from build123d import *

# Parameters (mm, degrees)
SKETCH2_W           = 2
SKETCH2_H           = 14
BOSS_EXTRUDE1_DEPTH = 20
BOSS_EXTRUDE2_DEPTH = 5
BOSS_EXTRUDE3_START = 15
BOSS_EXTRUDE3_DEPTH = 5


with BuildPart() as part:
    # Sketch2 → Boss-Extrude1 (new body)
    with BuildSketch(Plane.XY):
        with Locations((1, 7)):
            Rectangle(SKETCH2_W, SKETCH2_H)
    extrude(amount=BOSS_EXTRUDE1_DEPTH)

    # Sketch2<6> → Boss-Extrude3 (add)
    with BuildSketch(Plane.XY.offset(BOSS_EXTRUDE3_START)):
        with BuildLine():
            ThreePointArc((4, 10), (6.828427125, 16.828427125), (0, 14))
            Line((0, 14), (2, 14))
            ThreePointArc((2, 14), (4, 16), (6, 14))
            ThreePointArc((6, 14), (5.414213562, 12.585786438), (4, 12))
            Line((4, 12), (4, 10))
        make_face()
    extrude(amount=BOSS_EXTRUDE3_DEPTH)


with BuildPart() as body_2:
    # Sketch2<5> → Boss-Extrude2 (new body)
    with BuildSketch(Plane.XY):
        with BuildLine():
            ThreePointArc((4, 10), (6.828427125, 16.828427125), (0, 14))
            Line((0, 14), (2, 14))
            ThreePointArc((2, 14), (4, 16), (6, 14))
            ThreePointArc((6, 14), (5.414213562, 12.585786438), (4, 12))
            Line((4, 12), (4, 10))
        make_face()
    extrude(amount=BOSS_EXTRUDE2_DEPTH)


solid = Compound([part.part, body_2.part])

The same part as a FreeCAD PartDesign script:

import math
import FreeCAD as App
import Part
import Sketcher


def add_polygon(sketch, points):
    """Adds a closed chain of lines whose ends are joined by coincident constraints."""
    first, n = sketch.GeometryCount, len(points)
    for a, b in zip(points, points[1:] + points[:1]):
        sketch.addGeometry(Part.LineSegment(App.Vector(*a, 0), App.Vector(*b, 0)), False)
    for i in range(n):
        sketch.addConstraint(Sketcher.Constraint("Coincident", first + i, 2, first + (i + 1) % n, 1))

doc = App.newDocument("Part")
body = doc.addObject("PartDesign::Body", "Body")

# Sketch on XY plane
sketch1 = body.newObject("Sketcher::SketchObject", "Sketch")
sketch1.AttachmentSupport = (doc.getObject("XY_Plane"), [""])
sketch1.MapMode = "FlatFace"
add_polygon(sketch1, [(0, 14), (0, 0), (2, 0), (2, 14)])  # lines 0-3
sketch1.addConstraint(Sketcher.Constraint("Vertical", 0))
sketch1.addConstraint(Sketcher.Constraint("Horizontal", 1))
sketch1.addConstraint(Sketcher.Constraint("Vertical", 2))
sketch1.addConstraint(Sketcher.Constraint("Horizontal", 3))
sketch1.addConstraint(Sketcher.Constraint("Coincident", 0, 2, -1, 1))
sketch1.addConstraint(Sketcher.Constraint("DistanceX", 1, 1, 1, 2, 2.0))
sketch1.addConstraint(Sketcher.Constraint("DistanceY", 0, 2, 0, 1, 14.0))
pad1 = body.newObject("PartDesign::Pad", "Pad")
pad1.Profile = sketch1
pad1.Length = 20

# Sketch on XY plane
sketch2 = body.newObject("Sketcher::SketchObject", "Sketch001")
sketch2.AttachmentSupport = (doc.getObject("XY_Plane"), [""])
sketch2.MapMode = "FlatFace"
sketch2.AttachmentOffset = App.Placement(App.Vector(0, 0, 15), App.Rotation())
sketch2.addGeometry(Part.ArcOfCircle(Part.Circle(App.Vector(4, 14, 0), App.Vector(0, 0, 1), 4), math.radians(-90), math.radians(180)), False)
sketch2.addGeometry(Part.LineSegment(App.Vector(0, 14, 0), App.Vector(2, 14, 0)), False)
sketch2.addGeometry(Part.ArcOfCircle(Part.Circle(App.Vector(4, 14, 0), App.Vector(0, 0, 1), 2), math.radians(0), math.radians(180)), False)
sketch2.addGeometry(Part.ArcOfCircle(Part.Circle(App.Vector(4, 14, 0), App.Vector(0, 0, 1), 2), math.radians(-90), math.radians(0)), False)
sketch2.addGeometry(Part.LineSegment(App.Vector(4, 12, 0), App.Vector(4, 10, 0)), False)
sketch2.addConstraint(Sketcher.Constraint("Coincident", 0, 2, 1, 1))
sketch2.addConstraint(Sketcher.Constraint("Coincident", 1, 2, 2, 2))
sketch2.addConstraint(Sketcher.Constraint("Tangent", 2, 1, 3, 2))
sketch2.addConstraint(Sketcher.Constraint("Coincident", 3, 1, 4, 1))
sketch2.addConstraint(Sketcher.Constraint("Coincident", 4, 2, 0, 1))
sketch2.addConstraint(Sketcher.Constraint("Horizontal", 1))
sketch2.addConstraint(Sketcher.Constraint("Vertical", 4))
sketch2.addConstraint(Sketcher.Constraint("Coincident", 2, 3, 0, 3))
sketch2.addConstraint(Sketcher.Constraint("Equal", 2, 3))
sketch2.addConstraint(Sketcher.Constraint("PointOnObject", 0, 2, -2))
sketch2.addConstraint(Sketcher.Constraint("Horizontal", 3, 3, 0, 2))
sketch2.addConstraint(Sketcher.Constraint("Horizontal", 1, 2, 2, 1))
sketch2.addConstraint(Sketcher.Constraint("Vertical", 2, 3, 3, 1))
sketch2.addConstraint(Sketcher.Constraint("Radius", 0, 4.0))
sketch2.addConstraint(Sketcher.Constraint("Radius", 2, 2.0))
sketch2.addConstraint(Sketcher.Constraint("DistanceY", -1, 1, 0, 3, 14.0))
pad2 = body.newObject("PartDesign::Pad", "Pad001")
pad2.Profile = sketch2
pad2.Length = 5
body2 = doc.addObject("PartDesign::Body", "Body001")

# Sketch on XY plane
sketch3 = body2.newObject("Sketcher::SketchObject", "Sketch002")
sketch3.AttachmentSupport = (doc.getObject("XY_Plane001"), [""])
sketch3.MapMode = "FlatFace"
sketch3.addGeometry(Part.ArcOfCircle(Part.Circle(App.Vector(4, 14, 0), App.Vector(0, 0, 1), 4), math.radians(-90), math.radians(180)), False)
sketch3.addGeometry(Part.LineSegment(App.Vector(0, 14, 0), App.Vector(2, 14, 0)), False)
sketch3.addGeometry(Part.ArcOfCircle(Part.Circle(App.Vector(4, 14, 0), App.Vector(0, 0, 1), 2), math.radians(0), math.radians(180)), False)
sketch3.addGeometry(Part.ArcOfCircle(Part.Circle(App.Vector(4, 14, 0), App.Vector(0, 0, 1), 2), math.radians(-90), math.radians(0)), False)
sketch3.addGeometry(Part.LineSegment(App.Vector(4, 12, 0), App.Vector(4, 10, 0)), False)
sketch3.addConstraint(Sketcher.Constraint("Coincident", 0, 2, 1, 1))
sketch3.addConstraint(Sketcher.Constraint("Coincident", 1, 2, 2, 2))
sketch3.addConstraint(Sketcher.Constraint("Tangent", 2, 1, 3, 2))
sketch3.addConstraint(Sketcher.Constraint("Coincident", 3, 1, 4, 1))
sketch3.addConstraint(Sketcher.Constraint("Coincident", 4, 2, 0, 1))
sketch3.addConstraint(Sketcher.Constraint("Horizontal", 1))
sketch3.addConstraint(Sketcher.Constraint("Vertical", 4))
sketch3.addConstraint(Sketcher.Constraint("Coincident", 2, 3, 0, 3))
sketch3.addConstraint(Sketcher.Constraint("Equal", 2, 3))
sketch3.addConstraint(Sketcher.Constraint("PointOnObject", 0, 2, -2))
sketch3.addConstraint(Sketcher.Constraint("Horizontal", 3, 3, 0, 2))
sketch3.addConstraint(Sketcher.Constraint("Horizontal", 1, 2, 2, 1))
sketch3.addConstraint(Sketcher.Constraint("Vertical", 2, 3, 3, 1))
sketch3.addConstraint(Sketcher.Constraint("Radius", 0, 4.0))
sketch3.addConstraint(Sketcher.Constraint("Radius", 2, 2.0))
sketch3.addConstraint(Sketcher.Constraint("DistanceY", -1, 1, 0, 3, 14.0))
pad3 = body2.newObject("PartDesign::Pad", "Pad002")
pad3.Profile = sketch3
pad3.Length = 5

doc.recompute()
